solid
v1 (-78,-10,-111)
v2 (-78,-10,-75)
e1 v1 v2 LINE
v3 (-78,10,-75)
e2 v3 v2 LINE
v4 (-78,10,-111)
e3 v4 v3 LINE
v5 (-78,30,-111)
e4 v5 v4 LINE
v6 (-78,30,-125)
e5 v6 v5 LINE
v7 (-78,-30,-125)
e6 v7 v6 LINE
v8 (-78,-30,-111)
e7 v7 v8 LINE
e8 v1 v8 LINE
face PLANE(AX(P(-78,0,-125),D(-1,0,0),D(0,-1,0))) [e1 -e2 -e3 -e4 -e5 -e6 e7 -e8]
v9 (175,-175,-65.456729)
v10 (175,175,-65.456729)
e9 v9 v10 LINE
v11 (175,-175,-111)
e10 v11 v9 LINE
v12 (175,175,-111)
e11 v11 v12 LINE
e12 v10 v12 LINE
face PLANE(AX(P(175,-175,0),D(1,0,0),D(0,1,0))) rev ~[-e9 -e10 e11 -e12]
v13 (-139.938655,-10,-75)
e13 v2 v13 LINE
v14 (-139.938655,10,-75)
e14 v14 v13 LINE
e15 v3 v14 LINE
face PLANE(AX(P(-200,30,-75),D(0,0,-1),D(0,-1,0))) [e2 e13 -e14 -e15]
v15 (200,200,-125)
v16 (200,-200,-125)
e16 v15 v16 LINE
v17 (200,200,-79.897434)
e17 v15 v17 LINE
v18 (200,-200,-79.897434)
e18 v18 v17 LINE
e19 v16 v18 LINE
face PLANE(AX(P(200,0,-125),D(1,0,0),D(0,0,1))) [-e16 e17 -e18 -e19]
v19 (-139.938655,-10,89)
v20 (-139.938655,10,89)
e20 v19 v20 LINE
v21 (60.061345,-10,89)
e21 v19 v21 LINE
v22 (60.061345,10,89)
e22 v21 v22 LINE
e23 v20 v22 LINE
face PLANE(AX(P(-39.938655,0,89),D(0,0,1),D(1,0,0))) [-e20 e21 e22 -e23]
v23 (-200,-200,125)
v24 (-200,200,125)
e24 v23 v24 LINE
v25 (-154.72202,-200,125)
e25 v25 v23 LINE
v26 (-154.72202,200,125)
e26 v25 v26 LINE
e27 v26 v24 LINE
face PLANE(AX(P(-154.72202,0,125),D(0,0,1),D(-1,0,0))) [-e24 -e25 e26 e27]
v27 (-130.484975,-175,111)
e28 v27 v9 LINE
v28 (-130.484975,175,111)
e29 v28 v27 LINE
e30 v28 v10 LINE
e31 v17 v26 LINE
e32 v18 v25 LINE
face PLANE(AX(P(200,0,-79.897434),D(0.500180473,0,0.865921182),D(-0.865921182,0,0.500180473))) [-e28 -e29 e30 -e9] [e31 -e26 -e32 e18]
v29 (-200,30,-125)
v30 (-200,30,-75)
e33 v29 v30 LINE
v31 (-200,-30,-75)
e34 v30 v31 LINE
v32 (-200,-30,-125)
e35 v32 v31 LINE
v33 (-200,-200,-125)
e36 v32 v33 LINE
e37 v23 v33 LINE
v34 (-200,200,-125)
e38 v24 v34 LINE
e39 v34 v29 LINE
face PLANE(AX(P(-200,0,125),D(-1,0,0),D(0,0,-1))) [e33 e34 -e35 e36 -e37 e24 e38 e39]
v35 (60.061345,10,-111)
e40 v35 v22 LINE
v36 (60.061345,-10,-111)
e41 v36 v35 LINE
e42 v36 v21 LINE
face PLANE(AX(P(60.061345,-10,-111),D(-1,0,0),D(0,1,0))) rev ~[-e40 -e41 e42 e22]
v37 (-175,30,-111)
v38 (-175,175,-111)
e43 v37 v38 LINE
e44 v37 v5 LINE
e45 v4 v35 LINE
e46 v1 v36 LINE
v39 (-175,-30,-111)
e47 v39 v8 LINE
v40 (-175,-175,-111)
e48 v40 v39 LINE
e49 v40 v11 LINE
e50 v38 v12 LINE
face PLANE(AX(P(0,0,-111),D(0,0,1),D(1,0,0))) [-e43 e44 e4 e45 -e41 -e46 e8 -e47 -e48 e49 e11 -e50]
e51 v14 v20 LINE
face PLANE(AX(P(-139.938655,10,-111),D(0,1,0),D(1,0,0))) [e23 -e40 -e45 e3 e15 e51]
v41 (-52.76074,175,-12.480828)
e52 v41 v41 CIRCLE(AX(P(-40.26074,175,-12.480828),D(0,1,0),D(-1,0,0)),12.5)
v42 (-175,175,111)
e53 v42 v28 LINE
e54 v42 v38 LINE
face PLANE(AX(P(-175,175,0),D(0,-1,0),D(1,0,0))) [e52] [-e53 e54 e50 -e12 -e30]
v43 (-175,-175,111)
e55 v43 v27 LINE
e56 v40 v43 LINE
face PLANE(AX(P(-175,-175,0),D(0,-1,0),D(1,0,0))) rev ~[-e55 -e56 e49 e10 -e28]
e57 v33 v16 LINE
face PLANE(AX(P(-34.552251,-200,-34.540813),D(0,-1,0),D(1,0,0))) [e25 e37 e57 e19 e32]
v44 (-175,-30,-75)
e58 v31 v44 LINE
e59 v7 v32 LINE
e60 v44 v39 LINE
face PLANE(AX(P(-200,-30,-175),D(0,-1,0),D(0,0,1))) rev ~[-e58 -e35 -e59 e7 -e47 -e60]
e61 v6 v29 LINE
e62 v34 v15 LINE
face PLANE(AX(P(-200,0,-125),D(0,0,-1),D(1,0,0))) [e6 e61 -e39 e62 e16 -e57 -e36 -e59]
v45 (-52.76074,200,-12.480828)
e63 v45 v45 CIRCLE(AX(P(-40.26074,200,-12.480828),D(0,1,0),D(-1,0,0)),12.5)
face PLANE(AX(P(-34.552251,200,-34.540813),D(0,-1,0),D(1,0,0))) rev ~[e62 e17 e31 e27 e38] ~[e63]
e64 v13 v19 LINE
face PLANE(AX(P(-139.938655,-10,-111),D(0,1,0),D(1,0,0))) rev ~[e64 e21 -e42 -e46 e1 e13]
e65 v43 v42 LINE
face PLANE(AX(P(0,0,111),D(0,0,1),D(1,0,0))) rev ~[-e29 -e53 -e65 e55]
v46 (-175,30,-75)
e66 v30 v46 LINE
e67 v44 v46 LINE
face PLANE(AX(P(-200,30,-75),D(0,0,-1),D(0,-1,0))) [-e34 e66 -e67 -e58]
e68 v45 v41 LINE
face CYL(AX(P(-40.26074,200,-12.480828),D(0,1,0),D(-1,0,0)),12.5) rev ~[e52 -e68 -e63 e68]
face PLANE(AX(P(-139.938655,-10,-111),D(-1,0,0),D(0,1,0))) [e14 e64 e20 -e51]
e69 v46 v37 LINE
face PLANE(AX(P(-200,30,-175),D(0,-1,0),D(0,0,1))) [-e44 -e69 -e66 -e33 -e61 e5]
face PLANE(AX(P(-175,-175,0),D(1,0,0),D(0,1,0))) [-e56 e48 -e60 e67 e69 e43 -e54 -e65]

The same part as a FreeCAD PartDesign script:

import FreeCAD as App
import Part
import Sketcher

V = App.Vector


def add_polygon(sketch, points):
    """Adds a closed chain of lines whose ends are joined by coincident constraints."""
    first, n = sketch.GeometryCount, len(points)
    for a, b in zip(points, points[1:] + points[:1]):
        sketch.addGeometry(Part.LineSegment(App.Vector(*a, 0), App.Vector(*b, 0)), False)
    for i in range(n):
        sketch.addConstraint(Sketcher.Constraint("Coincident", first + i, 2, first + (i + 1) % n, 1))

doc = App.newDocument("Part")
body = doc.addObject("PartDesign::Body", "Body")

sketch1 = body.newObject("Sketcher::SketchObject", "Sketch")
sketch1.AttachmentSupport = (doc.getObject("XZ_Plane"), [""])
sketch1.MapMode = "FlatFace"
add_polygon(sketch1, [(-200, 125), (-200, -125), (200, -125), (200, -80), (-155, 125)])
sketch1.addConstraint([
    Sketcher.Constraint("Vertical", 0),
    Sketcher.Constraint("Horizontal", 1),
    Sketcher.Constraint("Vertical", 2),
    Sketcher.Constraint("Horizontal", 4),
    Sketcher.Constraint("Symmetric", 1, 2, 4, 2, -1, 1),
    Sketcher.Constraint("DistanceX", 1, 1, 1, 2, 400.0),
    Sketcher.Constraint("DistanceY", 0, 2, 0, 1, 250.0),
    Sketcher.Constraint("DistanceX", 4, 2, 4, 1, 45.27798),
    Sketcher.Constraint("DistanceY", 2, 1, 2, 2, 45.102566),
])
pad1 = body.newObject("PartDesign::Pad", "Pad")
pad1.Profile = sketch1
pad1.Length = 400
pad1.Midplane = True

sketch2 = body.newObject("Sketcher::SketchObject", "Sketch001")
sketch2.AttachmentSupport = (doc.getObject("XY_Plane"), [""])
sketch2.MapMode = "FlatFace"
add_polygon(sketch2, [(-175, 175), (-175, -175), (175, -175), (175, 175)])
sketch2.addConstraint([
    Sketcher.Constraint("Vertical", 0),
    Sketcher.Constraint("Horizontal", 1),
    Sketcher.Constraint("Vertical", 2),
    Sketcher.Constraint("Horizontal", 3),
    Sketcher.Constraint("Symmetric", 0, 2, 2, 2, -1, 1),
    Sketcher.Constraint("Equal", 3, 0),
    Sketcher.Constraint("DistanceX", 1, 1, 1, 2, 350.0),
])
pocket1 = body.newObject("PartDesign::Pocket", "Pocket")
pocket1.Profile = sketch2
pocket1.Length = 222
pocket1.Midplane = True

sketch3 = body.newObject("Sketcher::SketchObject", "Sketch002")
sketch3.AttachmentSupport = (doc.getObject("XY_Plane"), [""])
sketch3.MapMode = "FlatFace"
sketch3.AttachmentOffset = App.Placement(V(0, 0, -111), App.Rotation())
add_polygon(sketch3, [(-140, 10), (-140, -10), (60, -10), (60, 10)])
sketch3.addConstraint([
    Sketcher.Constraint("Vertical", 0),
    Sketcher.Constraint("Horizontal", 1),
    Sketcher.Constraint("Vertical", 2),
    Sketcher.Constraint("Horizontal", 3),
    Sketcher.Constraint("DistanceX", 1, 1, 1, 2, 200.0),
    Sketcher.Constraint("DistanceY", 0, 2, 0, 1, 20.0),
    Sketcher.Constraint("DistanceY", 0, 2, -1, 1, 10.0),
    Sketcher.Constraint("DistanceX", 0, 2, -1, 1, 139.938655),
])
pad2 = body.newObject("PartDesign::Pad", "Pad001")
pad2.Profile = sketch3
pad2.Length = 200

sketch4 = body.newObject("Sketcher::SketchObject", "Sketch003")
sketch4.AttachmentSupport = (doc.getObject("XZ_Plane"), [""])
sketch4.MapMode = "FlatFace"
sketch4.AttachmentOffset = App.Placement(V(0, 0, -200), App.Rotation())
sketch4.addGeometry(Part.Circle(V(-40, -12, 0), V(0, 0, 1), 12), False)
sketch4.addConstraint([
    Sketcher.Constraint("Diameter", 0, 25.0),
    Sketcher.Constraint("DistanceX", 0, 3, -1, 1, 40.26074),
    Sketcher.Constraint("DistanceY", 0, 3, -1, 1, 12.480828),
])
pocket2 = body.newObject("PartDesign::Pocket", "Pocket001")
pocket2.Profile = sketch4
pocket2.Length = 25
pocket2.Reversed = True

sketch5 = body.newObject("Sketcher::SketchObject", "Sketch004")
sketch5.AttachmentSupport = (doc.getObject("YZ_Plane"), [""])
sketch5.MapMode = "FlatFace"
sketch5.AttachmentOffset = App.Placement(V(0, 0, -200), App.Rotation())
add_polygon(sketch5, [(30, -75), (30, -175), (-30, -175), (-30, -75)])
sketch5.addConstraint([
    Sketcher.Constraint("Vertical", 0),
    Sketcher.Constraint("Horizontal", 1),
    Sketcher.Constraint("Vertical", 2),
    Sketcher.Constraint("Horizontal", 3),
    Sketcher.Constraint("DistanceX", 1, 2, 1, 1, 60.0),
    Sketcher.Constraint("DistanceY", 0, 2, 0, 1, 100.0),
    Sketcher.Constraint("DistanceX", -1, 1, 0, 2, 30.0),
    Sketcher.Constraint("DistanceY", 0, 2, -1, 1, 175.0),
])
pocket3 = body.newObject("PartDesign::Pocket", "Pocket002")
pocket3.Profile = sketch5
pocket3.Length = 122
pocket3.Reversed = True

doc.recompute()
